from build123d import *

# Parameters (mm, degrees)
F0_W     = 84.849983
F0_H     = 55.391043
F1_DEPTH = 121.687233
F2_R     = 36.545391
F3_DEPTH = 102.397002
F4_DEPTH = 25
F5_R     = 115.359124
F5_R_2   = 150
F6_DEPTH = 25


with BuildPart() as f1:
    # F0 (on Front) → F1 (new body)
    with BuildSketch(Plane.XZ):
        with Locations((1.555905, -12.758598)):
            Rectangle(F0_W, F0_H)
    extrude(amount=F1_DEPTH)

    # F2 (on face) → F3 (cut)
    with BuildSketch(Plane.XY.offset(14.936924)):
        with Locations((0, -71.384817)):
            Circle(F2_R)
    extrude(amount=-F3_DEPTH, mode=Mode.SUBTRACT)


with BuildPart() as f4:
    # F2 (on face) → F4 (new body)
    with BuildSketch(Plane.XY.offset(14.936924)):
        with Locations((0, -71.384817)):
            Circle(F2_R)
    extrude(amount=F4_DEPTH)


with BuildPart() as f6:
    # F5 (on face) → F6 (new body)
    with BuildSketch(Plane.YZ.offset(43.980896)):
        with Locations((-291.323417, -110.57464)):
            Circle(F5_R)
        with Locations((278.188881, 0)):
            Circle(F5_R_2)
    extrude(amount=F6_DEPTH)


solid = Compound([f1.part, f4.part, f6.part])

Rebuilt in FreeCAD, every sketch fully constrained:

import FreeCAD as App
import Part
import Sketcher

V = App.Vector


def add_polygon(sketch, points):
    """Adds a closed chain of lines whose ends are joined by coincident constraints."""
    first, n = sketch.GeometryCount, len(points)
    for a, b in zip(points, points[1:] + points[:1]):
        sketch.addGeometry(Part.LineSegment(App.Vector(*a, 0), App.Vector(*b, 0)), False)
    for i in range(n):
        sketch.addConstraint(Sketcher.Constraint("Coincident", first + i, 2, first + (i + 1) % n, 1))

doc = App.newDocument("Part")
body = doc.addObject("PartDesign::Body", "Body")

sketch1 = body.newObject("Sketcher::SketchObject", "Sketch")
sketch1.AttachmentSupport = (doc.getObject("XZ_Plane"), [""])
sketch1.MapMode = "FlatFace"
add_polygon(sketch1, [(-41, 15), (-41, -40), (44, -40), (44, 15)])
sketch1.addConstraint([
    Sketcher.Constraint("Vertical", 0),
    Sketcher.Constraint("Horizontal", 1),
    Sketcher.Constraint("Vertical", 2),
    Sketcher.Constraint("Horizontal", 3),
    Sketcher.Constraint("DistanceX", 1, 1, 1, 2, 84.849983),
    Sketcher.Constraint("DistanceY", 0, 2, 0, 1, 55.391043),
    Sketcher.Constraint("DistanceY", 0, 2, -1, 1, 40.454119),
    Sketcher.Constraint("DistanceX", 0, 2, -1, 1, 40.869087),
])
pad1 = body.newObject("PartDesign::Pad", "Pad")
pad1.Profile = sketch1
pad1.Length = 121.687233

sketch2 = body.newObject("Sketcher::SketchObject", "Sketch001")
sketch2.AttachmentSupport = (doc.getObject("XY_Plane"), [""])
sketch2.MapMode = "FlatFace"
sketch2.AttachmentOffset = App.Placement(V(0, 0, 14.936924), App.Rotation())
sketch2.addGeometry(Part.Circle(V(0, -71, 0), V(0, 0, 1), 37), False)
sketch2.addConstraint([
    Sketcher.Constraint("PointOnObject", 0, 3, -2),
    Sketcher.Constraint("Diameter", 0, 73.090782),
    Sketcher.Constraint("DistanceY", 0, 3, -1, 1, 71.384817),
])
pocket1 = body.newObject("PartDesign::Pocket", "Pocket")
pocket1.Profile = sketch2
pocket1.Length = 102.397002
body2 = doc.addObject("PartDesign::Body", "Body001")

sketch3 = body2.newObject("Sketcher::SketchObject", "Sketch002")
sketch3.AttachmentSupport = (doc.getObject("XY_Plane001"), [""])
sketch3.MapMode = "FlatFace"
sketch3.AttachmentOffset = App.Placement(V(0, 0, 14.936924), App.Rotation())
sketch3.addGeometry(Part.Circle(V(0, -71, 0), V(0, 0, 1), 37), False)
sketch3.addConstraint([
    Sketcher.Constraint("PointOnObject", 0, 3, -2),
    Sketcher.Constraint("Diameter", 0, 73.090782),
    Sketcher.Constraint("DistanceY", 0, 3, -1, 1, 71.384817),
])
pad2 = body2.newObject("PartDesign::Pad", "Pad001")
pad2.Profile = sketch3
pad2.Length = 25
body3 = doc.addObject("PartDesign::Body", "Body002")
body3.AllowCompound = True

sketch4 = body3.newObject("Sketcher::SketchObject", "Sketch003")
sketch4.AttachmentSupport = (doc.getObject("YZ_Plane002"), [""])
sketch4.MapMode = "FlatFace"
sketch4.AttachmentOffset = App.Placement(V(0, 0, 43.980896), App.Rotation())
sketch4.addGeometry([
    Part.Circle(V(-291, -111, 0), V(0, 0, 1), 115),
    Part.Circle(V(278, 0, 0), V(0, 0, 1), 150),
], False)
sketch4.addConstraint([
    Sketcher.Constraint("PointOnObject", 1, 3, -1),
    Sketcher.Constraint("Diameter", 1, 300.0),
    Sketcher.Constraint("Diameter", 0, 230.718248),
    Sketcher.Constraint("DistanceX", 0, 3, 1, 3, 569.512298),
    Sketcher.Constraint("DistanceY", 0, 3, -1, 1, 110.57464),
    Sketcher.Constraint("DistanceX", -1, 1, 1, 3, 278.188881),
])
pad3 = body3.newObject("PartDesign::Pad", "Pad002")
pad3.Profile = sketch4
pad3.Length = 25

doc.recompute()
